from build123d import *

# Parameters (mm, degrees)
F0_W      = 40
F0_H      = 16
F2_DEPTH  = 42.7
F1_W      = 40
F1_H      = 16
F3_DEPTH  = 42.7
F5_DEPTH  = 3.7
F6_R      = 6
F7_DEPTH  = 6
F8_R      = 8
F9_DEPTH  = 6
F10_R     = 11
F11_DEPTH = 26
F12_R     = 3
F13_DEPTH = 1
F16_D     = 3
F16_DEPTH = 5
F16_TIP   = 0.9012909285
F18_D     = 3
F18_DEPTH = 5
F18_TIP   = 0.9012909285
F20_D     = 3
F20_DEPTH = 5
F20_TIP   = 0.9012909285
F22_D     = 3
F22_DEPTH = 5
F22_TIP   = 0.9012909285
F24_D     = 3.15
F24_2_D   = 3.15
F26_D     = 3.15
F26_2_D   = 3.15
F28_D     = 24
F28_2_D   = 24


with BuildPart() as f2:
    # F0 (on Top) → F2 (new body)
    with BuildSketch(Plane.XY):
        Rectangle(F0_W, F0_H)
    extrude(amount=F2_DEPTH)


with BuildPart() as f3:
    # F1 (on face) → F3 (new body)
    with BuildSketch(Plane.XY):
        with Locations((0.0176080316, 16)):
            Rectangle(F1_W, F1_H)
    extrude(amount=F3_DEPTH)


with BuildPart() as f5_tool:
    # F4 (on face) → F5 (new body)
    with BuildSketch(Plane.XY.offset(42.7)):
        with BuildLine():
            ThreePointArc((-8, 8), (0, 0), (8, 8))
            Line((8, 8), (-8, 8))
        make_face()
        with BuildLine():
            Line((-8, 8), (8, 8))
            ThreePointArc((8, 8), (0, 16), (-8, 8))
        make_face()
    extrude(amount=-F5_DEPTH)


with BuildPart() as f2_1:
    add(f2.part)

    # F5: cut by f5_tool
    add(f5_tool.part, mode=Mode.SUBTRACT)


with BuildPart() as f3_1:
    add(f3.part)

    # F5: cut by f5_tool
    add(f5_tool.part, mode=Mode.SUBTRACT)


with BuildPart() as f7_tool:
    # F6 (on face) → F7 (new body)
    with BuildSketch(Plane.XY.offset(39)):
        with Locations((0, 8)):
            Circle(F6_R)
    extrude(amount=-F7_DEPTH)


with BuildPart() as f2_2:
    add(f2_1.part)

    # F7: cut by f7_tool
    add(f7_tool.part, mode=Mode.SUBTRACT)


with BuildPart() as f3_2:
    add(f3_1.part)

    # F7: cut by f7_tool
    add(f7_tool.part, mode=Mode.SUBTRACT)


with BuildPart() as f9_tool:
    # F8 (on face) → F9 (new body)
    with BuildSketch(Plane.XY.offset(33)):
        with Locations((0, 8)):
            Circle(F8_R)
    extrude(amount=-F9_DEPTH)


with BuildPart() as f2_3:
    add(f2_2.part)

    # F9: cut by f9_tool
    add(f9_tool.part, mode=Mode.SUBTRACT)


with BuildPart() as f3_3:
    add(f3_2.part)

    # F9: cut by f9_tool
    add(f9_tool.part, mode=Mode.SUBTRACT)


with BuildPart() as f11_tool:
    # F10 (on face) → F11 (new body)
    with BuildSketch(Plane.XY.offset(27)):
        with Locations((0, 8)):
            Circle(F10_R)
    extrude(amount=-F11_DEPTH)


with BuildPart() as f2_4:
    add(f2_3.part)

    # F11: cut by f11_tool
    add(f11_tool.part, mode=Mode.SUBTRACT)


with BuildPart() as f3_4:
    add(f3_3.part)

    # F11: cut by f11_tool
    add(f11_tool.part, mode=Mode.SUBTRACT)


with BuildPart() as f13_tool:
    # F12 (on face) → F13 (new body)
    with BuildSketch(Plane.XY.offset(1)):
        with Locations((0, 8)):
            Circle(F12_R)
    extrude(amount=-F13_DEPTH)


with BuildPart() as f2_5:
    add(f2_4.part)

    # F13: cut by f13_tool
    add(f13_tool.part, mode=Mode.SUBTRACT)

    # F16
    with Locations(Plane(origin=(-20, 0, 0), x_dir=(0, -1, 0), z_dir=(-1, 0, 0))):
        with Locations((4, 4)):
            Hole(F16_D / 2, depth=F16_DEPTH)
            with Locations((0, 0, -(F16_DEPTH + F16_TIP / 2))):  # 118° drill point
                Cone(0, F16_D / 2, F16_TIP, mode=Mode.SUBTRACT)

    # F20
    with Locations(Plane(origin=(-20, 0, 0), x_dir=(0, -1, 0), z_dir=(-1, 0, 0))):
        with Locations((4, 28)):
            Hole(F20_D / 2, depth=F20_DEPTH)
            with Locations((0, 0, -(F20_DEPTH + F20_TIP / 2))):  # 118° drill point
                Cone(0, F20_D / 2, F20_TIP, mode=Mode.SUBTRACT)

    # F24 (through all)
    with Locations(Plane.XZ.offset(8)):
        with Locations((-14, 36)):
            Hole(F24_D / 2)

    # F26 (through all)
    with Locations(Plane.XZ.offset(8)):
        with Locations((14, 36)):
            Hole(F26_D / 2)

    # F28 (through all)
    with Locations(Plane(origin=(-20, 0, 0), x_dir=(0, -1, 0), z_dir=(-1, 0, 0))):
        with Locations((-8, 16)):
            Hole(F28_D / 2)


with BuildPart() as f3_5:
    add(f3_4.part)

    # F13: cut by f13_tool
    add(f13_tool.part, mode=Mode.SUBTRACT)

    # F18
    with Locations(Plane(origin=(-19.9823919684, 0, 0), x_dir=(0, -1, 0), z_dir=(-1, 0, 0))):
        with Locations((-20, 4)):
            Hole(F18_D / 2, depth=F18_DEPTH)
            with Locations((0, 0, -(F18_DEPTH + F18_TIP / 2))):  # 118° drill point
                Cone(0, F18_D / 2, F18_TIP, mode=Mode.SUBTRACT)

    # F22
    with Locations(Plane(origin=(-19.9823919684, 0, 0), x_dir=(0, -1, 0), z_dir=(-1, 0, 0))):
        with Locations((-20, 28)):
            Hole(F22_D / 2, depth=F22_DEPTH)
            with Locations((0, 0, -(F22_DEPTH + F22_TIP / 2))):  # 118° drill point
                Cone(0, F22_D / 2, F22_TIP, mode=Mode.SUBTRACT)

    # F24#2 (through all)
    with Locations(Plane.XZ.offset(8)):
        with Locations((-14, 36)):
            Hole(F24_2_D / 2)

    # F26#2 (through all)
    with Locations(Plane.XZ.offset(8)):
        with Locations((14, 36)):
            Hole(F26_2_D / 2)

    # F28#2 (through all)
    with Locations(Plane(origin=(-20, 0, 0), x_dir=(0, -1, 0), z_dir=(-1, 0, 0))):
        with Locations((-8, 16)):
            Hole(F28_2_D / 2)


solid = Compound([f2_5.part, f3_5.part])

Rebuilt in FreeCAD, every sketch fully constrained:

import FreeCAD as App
import Part
import Sketcher
Q = App.Units.Quantity

doc = App.newDocument("Part")
body = doc.addObject("PartDesign::Body", "Body")

# Sketch on XY plane
sketch1 = doc.addObject("Sketcher::SketchObject", "Sketch")
body.addObject(sketch1)
sketch1.AttachmentSupport = (doc.XY_Plane, [""])
sketch1.MapMode = "FlatFace"
sketch1.addGeometry(Part.LineSegment(App.Vector(-20, 8, 0), App.Vector(-20, -8, 0)), False)
sketch1.addGeometry(Part.LineSegment(App.Vector(-20, -8, 0), App.Vector(20, -8, 0)), False)
sketch1.addGeometry(Part.LineSegment(App.Vector(20, -8, 0), App.Vector(20, 8, 0)), False)
sketch1.addGeometry(Part.LineSegment(App.Vector(20, 8, 0), App.Vector(-20, 8, 0)), False)
sketch1.addConstraint(Sketcher.Constraint("Coincident", 0, 2, 1, 1))
sketch1.addConstraint(Sketcher.Constraint("Coincident", 1, 2, 2, 1))
sketch1.addConstraint(Sketcher.Constraint("Coincident", 2, 2, 3, 1))
sketch1.addConstraint(Sketcher.Constraint("Coincident", 3, 2, 0, 1))
sketch1.addConstraint(Sketcher.Constraint("Vertical", 0))
sketch1.addConstraint(Sketcher.Constraint("Horizontal", 1))
sketch1.addConstraint(Sketcher.Constraint("Vertical", 2))
sketch1.addConstraint(Sketcher.Constraint("Horizontal", 3))
sketch1.addConstraint(Sketcher.Constraint("Symmetric", 0, 2, 2, 2, -1, 1))
sketch1.addConstraint(Sketcher.Constraint("DistanceX", 1, 1, 1, 2, Q("40 mm")))
sketch1.addConstraint(Sketcher.Constraint("DistanceY", 0, 2, 0, 1, Q("16 mm")))
pad1 = doc.addObject("PartDesign::Pad", "Pad")
body.addObject(pad1)
pad1.Profile = sketch1
pad1.Length = 42.7
body2 = doc.addObject("PartDesign::Body", "Body001")

# Sketch on XY plane
sketch2 = doc.addObject("Sketcher::SketchObject", "Sketch001")
body2.addObject(sketch2)
sketch2.AttachmentSupport = (doc.getObject("XY_Plane001"), [""])
sketch2.MapMode = "FlatFace"
sketch2.addGeometry(Part.LineSegment(App.Vector(-20, 24, 0), App.Vector(-20, 8, 0)), False)
sketch2.addGeometry(Part.LineSegment(App.Vector(-20, 8, 0), App.Vector(20, 8, 0)), False)
sketch2.addGeometry(Part.LineSegment(App.Vector(20, 8, 0), App.Vector(20, 24, 0)), False)
sketch2.addGeometry(Part.LineSegment(App.Vector(20, 24, 0), App.Vector(-20, 24, 0)), False)
sketch2.addConstraint(Sketcher.Constraint("Coincident", 0, 2, 1, 1))
sketch2.addConstraint(Sketcher.Constraint("Coincident", 1, 2, 2, 1))
sketch2.addConstraint(Sketcher.Constraint("Coincident", 2, 2, 3, 1))
sketch2.addConstraint(Sketcher.Constraint("Coincident", 3, 2, 0, 1))
sketch2.addConstraint(Sketcher.Constraint("Vertical", 0))
sketch2.addConstraint(Sketcher.Constraint("Horizontal", 1))
sketch2.addConstraint(Sketcher.Constraint("Vertical", 2))
sketch2.addConstraint(Sketcher.Constraint("Horizontal", 3))
sketch2.addConstraint(Sketcher.Constraint("DistanceX", 1, 1, 1, 2, Q("40 mm")))
sketch2.addConstraint(Sketcher.Constraint("DistanceY", 0, 2, 0, 1, Q("16 mm")))
sketch2.addConstraint(Sketcher.Constraint("DistanceY", -1, 1, 0, 2, Q("8 mm")))
sketch2.addConstraint(Sketcher.Constraint("DistanceX", 0, 2, -1, 1, Q("19.982392 mm")))
pad2 = doc.addObject("PartDesign::Pad", "Pad001")
body2.addObject(pad2)
pad2.Profile = sketch2
pad2.Length = 42.7
body3 = doc.addObject("PartDesign::Body", "Body002")

# Sketch on XY plane
sketch3 = doc.addObject("Sketcher::SketchObject", "Sketch002")
body3.addObject(sketch3)
sketch3.AttachmentSupport = (doc.getObject("XY_Plane002"), [""])
sketch3.MapMode = "FlatFace"
sketch3.AttachmentOffset = App.Placement(App.Vector(0, 0, 42.7), App.Rotation())
sketch3.addGeometry(Part.Circle(App.Vector(0, 8, 0), App.Vector(0, 0, 1), 8), False)
sketch3.addConstraint(Sketcher.Constraint("PointOnObject", 0, 3, -2))
sketch3.addConstraint(Sketcher.Constraint("Diameter", 0, Q("16 mm")))
sketch3.addConstraint(Sketcher.Constraint("DistanceY", -1, 1, 0, 3, Q("8 mm")))
pad3 = doc.addObject("PartDesign::Pad", "Pad002")
body3.addObject(pad3)
pad3.Profile = sketch3
pad3.Length = 3.7
pad3.Reversed = True
doc.recompute()

body4 = doc.addObject("PartDesign::Body", "Body003")
body4.BaseFeature = body3
boolean = doc.addObject("PartDesign::Boolean", "Boolean")
body.addObject(boolean)
boolean.Type = "Cut"
boolean.addObjects([body4])
doc.recompute()

boolean2 = doc.addObject("PartDesign::Boolean", "Boolean001")
body2.addObject(boolean2)
boolean2.Type = "Cut"
boolean2.addObjects([body3])
body5 = doc.addObject("PartDesign::Body", "Body004")

# Sketch on XY plane
sketch4 = doc.addObject("Sketcher::SketchObject", "Sketch003")
body5.addObject(sketch4)
sketch4.AttachmentSupport = (doc.getObject("XY_Plane004"), [""])
sketch4.MapMode = "FlatFace"
sketch4.AttachmentOffset = App.Placement(App.Vector(0, 0, 39), App.Rotation())
sketch4.addGeometry(Part.Circle(App.Vector(0, 8, 0), App.Vector(0, 0, 1), 6), False)
sketch4.addConstraint(Sketcher.Constraint("PointOnObject", 0, 3, -2))
sketch4.addConstraint(Sketcher.Constraint("Diameter", 0, Q("12 mm")))
sketch4.addConstraint(Sketcher.Constraint("DistanceY", -1, 1, 0, 3, Q("8 mm")))
pad4 = doc.addObject("PartDesign::Pad", "Pad003")
body5.addObject(pad4)
pad4.Profile = sketch4
pad4.Length = 6
pad4.Reversed = True
doc.recompute()

body6 = doc.addObject("PartDesign::Body", "Body005")
body6.BaseFeature = body5
boolean3 = doc.addObject("PartDesign::Boolean", "Boolean002")
body.addObject(boolean3)
boolean3.Type = "Cut"
boolean3.addObjects([body6])
doc.recompute()

boolean4 = doc.addObject("PartDesign::Boolean", "Boolean003")
body2.addObject(boolean4)
boolean4.Type = "Cut"
boolean4.addObjects([body5])
body7 = doc.addObject("PartDesign::Body", "Body006")

# Sketch on XY plane
sketch5 = doc.addObject("Sketcher::SketchObject", "Sketch004")
body7.addObject(sketch5)
sketch5.AttachmentSupport = (doc.getObject("XY_Plane006"), [""])
sketch5.MapMode = "FlatFace"
sketch5.AttachmentOffset = App.Placement(App.Vector(0, 0, 33), App.Rotation())
sketch5.addGeometry(Part.Circle(App.Vector(0, 8, 0), App.Vector(0, 0, 1), 8), False)
sketch5.addConstraint(Sketcher.Constraint("PointOnObject", 0, 3, -2))
sketch5.addConstraint(Sketcher.Constraint("Diameter", 0, Q("16 mm")))
sketch5.addConstraint(Sketcher.Constraint("DistanceY", -1, 1, 0, 3, Q("8 mm")))
pad5 = doc.addObject("PartDesign::Pad", "Pad004")
body7.addObject(pad5)
pad5.Profile = sketch5
pad5.Length = 6
pad5.Reversed = True
doc.recompute()

body8 = doc.addObject("PartDesign::Body", "Body007")
body8.BaseFeature = body7
boolean5 = doc.addObject("PartDesign::Boolean", "Boolean004")
body.addObject(boolean5)
boolean5.Type = "Cut"
boolean5.addObjects([body8])
doc.recompute()

boolean6 = doc.addObject("PartDesign::Boolean", "Boolean005")
body2.addObject(boolean6)
boolean6.Type = "Cut"
boolean6.addObjects([body7])
body9 = doc.addObject("PartDesign::Body", "Body008")

# Sketch on XY plane
sketch6 = doc.addObject("Sketcher::SketchObject", "Sketch005")
body9.addObject(sketch6)
sketch6.AttachmentSupport = (doc.getObject("XY_Plane008"), [""])
sketch6.MapMode = "FlatFace"
sketch6.AttachmentOffset = App.Placement(App.Vector(0, 0, 27), App.Rotation())
sketch6.addGeometry(Part.Circle(App.Vector(0, 8, 0), App.Vector(0, 0, 1), 11), False)
sketch6.addConstraint(Sketcher.Constraint("PointOnObject", 0, 3, -2))
sketch6.addConstraint(Sketcher.Constraint("Diameter", 0, Q("22 mm")))
sketch6.addConstraint(Sketcher.Constraint("DistanceY", -1, 1, 0, 3, Q("8 mm")))
pad6 = doc.addObject("PartDesign::Pad", "Pad005")
body9.addObject(pad6)
pad6.Profile = sketch6
pad6.Length = 26
pad6.Reversed = True
doc.recompute()

body10 = doc.addObject("PartDesign::Body", "Body009")
body10.BaseFeature = body9
boolean7 = doc.addObject("PartDesign::Boolean", "Boolean006")
body.addObject(boolean7)
boolean7.Type = "Cut"
boolean7.addObjects([body10])
doc.recompute()

boolean8 = doc.addObject("PartDesign::Boolean", "Boolean007")
body2.addObject(boolean8)
boolean8.Type = "Cut"
boolean8.addObjects([body9])
body11 = doc.addObject("PartDesign::Body", "Body010")

# Sketch on XY plane
sketch7 = doc.addObject("Sketcher::SketchObject", "Sketch006")
body11.addObject(sketch7)
sketch7.AttachmentSupport = (doc.getObject("XY_Plane010"), [""])
sketch7.MapMode = "FlatFace"
sketch7.AttachmentOffset = App.Placement(App.Vector(0, 0, 1), App.Rotation())
sketch7.addGeometry(Part.Circle(App.Vector(0, 8, 0), App.Vector(0, 0, 1), 3), False)
sketch7.addConstraint(Sketcher.Constraint("PointOnObject", 0, 3, -2))
sketch7.addConstraint(Sketcher.Constraint("Diameter", 0, Q("6 mm")))
sketch7.addConstraint(Sketcher.Constraint("DistanceY", -1, 1, 0, 3, Q("8 mm")))
pad7 = doc.addObject("PartDesign::Pad", "Pad006")
body11.addObject(pad7)
pad7.Profile = sketch7
pad7.Length = 1
pad7.Reversed = True
doc.recompute()

body12 = doc.addObject("PartDesign::Body", "Body011")
body12.BaseFeature = body11
boolean9 = doc.addObject("PartDesign::Boolean", "Boolean008")
body.addObject(boolean9)
boolean9.Type = "Cut"
boolean9.addObjects([body12])
doc.recompute()

# Sketch on YZ plane
sketch8 = doc.addObject("Sketcher::SketchObject", "Sketch007")
body.addObject(sketch8)
sketch8.AttachmentSupport = (doc.YZ_Plane, [""])
sketch8.MapMode = "FlatFace"
sketch8.AttachmentOffset = App.Placement(App.Vector(0, 0, -20), App.Rotation())
sketch8.addGeometry(Part.Circle(App.Vector(-4, 4, 0), App.Vector(0, 0, 1), 1.5), False)
sketch8.addConstraint(Sketcher.Constraint("Diameter", 0, Q("3 mm")))
sketch8.addConstraint(Sketcher.Constraint("DistanceX", 0, 3, -1, 1, Q("4 mm")))
sketch8.addConstraint(Sketcher.Constraint("DistanceY", -1, 1, 0, 3, Q("4 mm")))
doc.recompute()
hole = doc.addObject("PartDesign::Hole", "Hole")
body.addObject(hole)
hole.Profile = sketch8
hole.ThreadType = "None"
hole.Diameter = 3
hole.DepthType = "Dimension"
hole.Depth = 5
hole.DrillPoint = "Angled"
hole.DrillPointAngle = 118
hole.Reversed = True

# Sketch on YZ plane
sketch9 = doc.addObject("Sketcher::SketchObject", "Sketch008")
body.addObject(sketch9)
sketch9.AttachmentSupport = (doc.YZ_Plane, [""])
sketch9.MapMode = "FlatFace"
sketch9.AttachmentOffset = App.Placement(App.Vector(0, 0, -20), App.Rotation())
sketch9.addGeometry(Part.Circle(App.Vector(-4, 28, 0), App.Vector(0, 0, 1), 1.5), False)
sketch9.addConstraint(Sketcher.Constraint("Diameter", 0, Q("3 mm")))
sketch9.addConstraint(Sketcher.Constraint("DistanceX", 0, 3, -1, 1, Q("4 mm")))
sketch9.addConstraint(Sketcher.Constraint("DistanceY", -1, 1, 0, 3, Q("28 mm")))
doc.recompute()
hole2 = doc.addObject("PartDesign::Hole", "Hole001")
body.addObject(hole2)
hole2.Profile = sketch9
hole2.ThreadType = "None"
hole2.Diameter = 3
hole2.DepthType = "Dimension"
hole2.Depth = 5
hole2.DrillPoint = "Angled"
hole2.DrillPointAngle = 118
hole2.Reversed = True

# Sketch on XZ plane
sketch10 = doc.addObject("Sketcher::SketchObject", "Sketch009")
body.addObject(sketch10)
sketch10.AttachmentSupport = (doc.XZ_Plane, [""])
sketch10.MapMode = "FlatFace"
sketch10.AttachmentOffset = App.Placement(App.Vector(0, 0, 8), App.Rotation())
sketch10.addGeometry(Part.Circle(App.Vector(-14, 36, 0), App.Vector(0, 0, 1), 1.6), False)
sketch10.addConstraint(Sketcher.Constraint("Diameter", 0, Q("3.15 mm")))
sketch10.addConstraint(Sketcher.Constraint("DistanceX", 0, 3, -1, 1, Q("14 mm")))
sketch10.addConstraint(Sketcher.Constraint("DistanceY", -1, 1, 0, 3, Q("36 mm")))
doc.recompute()
hole3 = doc.addObject("PartDesign::Hole", "Hole002")
body.addObject(hole3)
hole3.Profile = sketch10
hole3.ThreadType = "None"
hole3.Diameter = 3.15
hole3.DepthType = "ThroughAll"

# Sketch on XZ plane
sketch11 = doc.addObject("Sketcher::SketchObject", "Sketch010")
body.addObject(sketch11)
sketch11.AttachmentSupport = (doc.XZ_Plane, [""])
sketch11.MapMode = "FlatFace"
sketch11.AttachmentOffset = App.Placement(App.Vector(0, 0, 8), App.Rotation())
sketch11.addGeometry(Part.Circle(App.Vector(14, 36, 0), App.Vector(0, 0, 1), 1.6), False)
sketch11.addConstraint(Sketcher.Constraint("Diameter", 0, Q("3.15 mm")))
sketch11.addConstraint(Sketcher.Constraint("DistanceX", -1, 1, 0, 3, Q("14 mm")))
sketch11.addConstraint(Sketcher.Constraint("DistanceY", -1, 1, 0, 3, Q("36 mm")))
doc.recompute()
hole4 = doc.addObject("PartDesign::Hole", "Hole003")
body.addObject(hole4)
hole4.Profile = sketch11
hole4.ThreadType = "None"
hole4.Diameter = 3.15
hole4.DepthType = "ThroughAll"

# Sketch on YZ plane
sketch12 = doc.addObject("Sketcher::SketchObject", "Sketch011")
body.addObject(sketch12)
sketch12.AttachmentSupport = (doc.YZ_Plane, [""])
sketch12.MapMode = "FlatFace"
sketch12.AttachmentOffset = App.Placement(App.Vector(0, 0, -20), App.Rotation())
sketch12.addGeometry(Part.Circle(App.Vector(8, 16, 0), App.Vector(0, 0, 1), 12), False)
sketch12.addConstraint(Sketcher.Constraint("Diameter", 0, Q("24 mm")))
sketch12.addConstraint(Sketcher.Constraint("DistanceX", -1, 1, 0, 3, Q("8 mm")))
sketch12.addConstraint(Sketcher.Constraint("DistanceY", -1, 1, 0, 3, Q("16 mm")))
doc.recompute()
hole5 = doc.addObject("PartDesign::Hole", "Hole004")
body.addObject(hole5)
hole5.Profile = sketch12
hole5.ThreadType = "None"
hole5.Diameter = 24
hole5.DepthType = "ThroughAll"
hole5.Reversed = True
doc.recompute()

boolean10 = doc.addObject("PartDesign::Boolean", "Boolean009")
body2.addObject(boolean10)
boolean10.Type = "Cut"
boolean10.addObjects([body11])

# Sketch on YZ plane
sketch13 = doc.addObject("Sketcher::SketchObject", "Sketch012")
body2.addObject(sketch13)
sketch13.AttachmentSupport = (doc.getObject("YZ_Plane001"), [""])
sketch13.MapMode = "FlatFace"
sketch13.AttachmentOffset = App.Placement(App.Vector(0, 0, -19.982392), App.Rotation())
sketch13.addGeometry(Part.Circle(App.Vector(20, 4, 0), App.Vector(0, 0, 1), 1.5), False)
sketch13.addConstraint(Sketcher.Constraint("Diameter", 0, Q("3 mm")))
sketch13.addConstraint(Sketcher.Constraint("DistanceX", -1, 1, 0, 3, Q("20 mm")))
sketch13.addConstraint(Sketcher.Constraint("DistanceY", -1, 1, 0, 3, Q("4 mm")))
doc.recompute()
hole6 = doc.addObject("PartDesign::Hole", "Hole005")
body2.addObject(hole6)
hole6.Profile = sketch13
hole6.ThreadType = "None"
hole6.Diameter = 3
hole6.DepthType = "Dimension"
hole6.Depth = 5
hole6.DrillPoint = "Angled"
hole6.DrillPointAngle = 118
hole6.Reversed = True

# Sketch on YZ plane
sketch14 = doc.addObject("Sketcher::SketchObject", "Sketch013")
body2.addObject(sketch14)
sketch14.AttachmentSupport = (doc.getObject("YZ_Plane001"), [""])
sketch14.MapMode = "FlatFace"
sketch14.AttachmentOffset = App.Placement(App.Vector(0, 0, -19.982392), App.Rotation())
sketch14.addGeometry(Part.Circle(App.Vector(20, 28, 0), App.Vector(0, 0, 1), 1.5), False)
sketch14.addConstraint(Sketcher.Constraint("Diameter", 0, Q("3 mm")))
sketch14.addConstraint(Sketcher.Constraint("DistanceX", -1, 1, 0, 3, Q("20 mm")))
sketch14.addConstraint(Sketcher.Constraint("DistanceY", -1, 1, 0, 3, Q("28 mm")))
doc.recompute()
hole7 = doc.addObject("PartDesign::Hole", "Hole006")
body2.addObject(hole7)
hole7.Profile = sketch14
hole7.ThreadType = "None"
hole7.Diameter = 3
hole7.DepthType = "Dimension"
hole7.Depth = 5
hole7.DrillPoint = "Angled"
hole7.DrillPointAngle = 118
hole7.Reversed = True

# Sketch on XZ plane
sketch15 = doc.addObject("Sketcher::SketchObject", "Sketch014")
body2.addObject(sketch15)
sketch15.AttachmentSupport = (doc.getObject("XZ_Plane001"), [""])
sketch15.MapMode = "FlatFace"
sketch15.AttachmentOffset = App.Placement(App.Vector(0, 0, 8), App.Rotation())
sketch15.addGeometry(Part.Circle(App.Vector(-14, 36, 0), App.Vector(0, 0, 1), 1.6), False)
sketch15.addConstraint(Sketcher.Constraint("Diameter", 0, Q("3.15 mm")))
sketch15.addConstraint(Sketcher.Constraint("DistanceX", 0, 3, -1, 1, Q("14 mm")))
sketch15.addConstraint(Sketcher.Constraint("DistanceY", -1, 1, 0, 3, Q("36 mm")))
doc.recompute()
hole8 = doc.addObject("PartDesign::Hole", "Hole007")
body2.addObject(hole8)
hole8.Profile = sketch15
hole8.ThreadType = "None"
hole8.Diameter = 3.15
hole8.DepthType = "ThroughAll"

# Sketch on XZ plane
sketch16 = doc.addObject("Sketcher::SketchObject", "Sketch015")
body2.addObject(sketch16)
sketch16.AttachmentSupport = (doc.getObject("XZ_Plane001"), [""])
sketch16.MapMode = "FlatFace"
sketch16.AttachmentOffset = App.Placement(App.Vector(0, 0, 8), App.Rotation())
sketch16.addGeometry(Part.Circle(App.Vector(14, 36, 0), App.Vector(0, 0, 1), 1.6), False)
sketch16.addConstraint(Sketcher.Constraint("Diameter", 0, Q("3.15 mm")))
sketch16.addConstraint(Sketcher.Constraint("DistanceX", -1, 1, 0, 3, Q("14 mm")))
sketch16.addConstraint(Sketcher.Constraint("DistanceY", -1, 1, 0, 3, Q("36 mm")))
doc.recompute()
hole9 = doc.addObject("PartDesign::Hole", "Hole008")
body2.addObject(hole9)
hole9.Profile = sketch16
hole9.ThreadType = "None"
hole9.Diameter = 3.15
hole9.DepthType = "ThroughAll"

# Sketch on YZ plane
sketch17 = doc.addObject("Sketcher::SketchObject", "Sketch016")
body2.addObject(sketch17)
sketch17.AttachmentSupport = (doc.getObject("YZ_Plane001"), [""])
sketch17.MapMode = "FlatFace"
sketch17.AttachmentOffset = App.Placement(App.Vector(0, 0, -20), App.Rotation())
sketch17.addGeometry(Part.Circle(App.Vector(8, 16, 0), App.Vector(0, 0, 1), 12), False)
sketch17.addConstraint(Sketcher.Constraint("Diameter", 0, Q("24 mm")))
sketch17.addConstraint(Sketcher.Constraint("DistanceX", -1, 1, 0, 3, Q("8 mm")))
sketch17.addConstraint(Sketcher.Constraint("DistanceY", -1, 1, 0, 3, Q("16 mm")))
doc.recompute()
hole10 = doc.addObject("PartDesign::Hole", "Hole009")
body2.addObject(hole10)
hole10.Profile = sketch17
hole10.ThreadType = "None"
hole10.Diameter = 24
hole10.DepthType = "ThroughAll"
hole10.Reversed = True

doc.recompute()
